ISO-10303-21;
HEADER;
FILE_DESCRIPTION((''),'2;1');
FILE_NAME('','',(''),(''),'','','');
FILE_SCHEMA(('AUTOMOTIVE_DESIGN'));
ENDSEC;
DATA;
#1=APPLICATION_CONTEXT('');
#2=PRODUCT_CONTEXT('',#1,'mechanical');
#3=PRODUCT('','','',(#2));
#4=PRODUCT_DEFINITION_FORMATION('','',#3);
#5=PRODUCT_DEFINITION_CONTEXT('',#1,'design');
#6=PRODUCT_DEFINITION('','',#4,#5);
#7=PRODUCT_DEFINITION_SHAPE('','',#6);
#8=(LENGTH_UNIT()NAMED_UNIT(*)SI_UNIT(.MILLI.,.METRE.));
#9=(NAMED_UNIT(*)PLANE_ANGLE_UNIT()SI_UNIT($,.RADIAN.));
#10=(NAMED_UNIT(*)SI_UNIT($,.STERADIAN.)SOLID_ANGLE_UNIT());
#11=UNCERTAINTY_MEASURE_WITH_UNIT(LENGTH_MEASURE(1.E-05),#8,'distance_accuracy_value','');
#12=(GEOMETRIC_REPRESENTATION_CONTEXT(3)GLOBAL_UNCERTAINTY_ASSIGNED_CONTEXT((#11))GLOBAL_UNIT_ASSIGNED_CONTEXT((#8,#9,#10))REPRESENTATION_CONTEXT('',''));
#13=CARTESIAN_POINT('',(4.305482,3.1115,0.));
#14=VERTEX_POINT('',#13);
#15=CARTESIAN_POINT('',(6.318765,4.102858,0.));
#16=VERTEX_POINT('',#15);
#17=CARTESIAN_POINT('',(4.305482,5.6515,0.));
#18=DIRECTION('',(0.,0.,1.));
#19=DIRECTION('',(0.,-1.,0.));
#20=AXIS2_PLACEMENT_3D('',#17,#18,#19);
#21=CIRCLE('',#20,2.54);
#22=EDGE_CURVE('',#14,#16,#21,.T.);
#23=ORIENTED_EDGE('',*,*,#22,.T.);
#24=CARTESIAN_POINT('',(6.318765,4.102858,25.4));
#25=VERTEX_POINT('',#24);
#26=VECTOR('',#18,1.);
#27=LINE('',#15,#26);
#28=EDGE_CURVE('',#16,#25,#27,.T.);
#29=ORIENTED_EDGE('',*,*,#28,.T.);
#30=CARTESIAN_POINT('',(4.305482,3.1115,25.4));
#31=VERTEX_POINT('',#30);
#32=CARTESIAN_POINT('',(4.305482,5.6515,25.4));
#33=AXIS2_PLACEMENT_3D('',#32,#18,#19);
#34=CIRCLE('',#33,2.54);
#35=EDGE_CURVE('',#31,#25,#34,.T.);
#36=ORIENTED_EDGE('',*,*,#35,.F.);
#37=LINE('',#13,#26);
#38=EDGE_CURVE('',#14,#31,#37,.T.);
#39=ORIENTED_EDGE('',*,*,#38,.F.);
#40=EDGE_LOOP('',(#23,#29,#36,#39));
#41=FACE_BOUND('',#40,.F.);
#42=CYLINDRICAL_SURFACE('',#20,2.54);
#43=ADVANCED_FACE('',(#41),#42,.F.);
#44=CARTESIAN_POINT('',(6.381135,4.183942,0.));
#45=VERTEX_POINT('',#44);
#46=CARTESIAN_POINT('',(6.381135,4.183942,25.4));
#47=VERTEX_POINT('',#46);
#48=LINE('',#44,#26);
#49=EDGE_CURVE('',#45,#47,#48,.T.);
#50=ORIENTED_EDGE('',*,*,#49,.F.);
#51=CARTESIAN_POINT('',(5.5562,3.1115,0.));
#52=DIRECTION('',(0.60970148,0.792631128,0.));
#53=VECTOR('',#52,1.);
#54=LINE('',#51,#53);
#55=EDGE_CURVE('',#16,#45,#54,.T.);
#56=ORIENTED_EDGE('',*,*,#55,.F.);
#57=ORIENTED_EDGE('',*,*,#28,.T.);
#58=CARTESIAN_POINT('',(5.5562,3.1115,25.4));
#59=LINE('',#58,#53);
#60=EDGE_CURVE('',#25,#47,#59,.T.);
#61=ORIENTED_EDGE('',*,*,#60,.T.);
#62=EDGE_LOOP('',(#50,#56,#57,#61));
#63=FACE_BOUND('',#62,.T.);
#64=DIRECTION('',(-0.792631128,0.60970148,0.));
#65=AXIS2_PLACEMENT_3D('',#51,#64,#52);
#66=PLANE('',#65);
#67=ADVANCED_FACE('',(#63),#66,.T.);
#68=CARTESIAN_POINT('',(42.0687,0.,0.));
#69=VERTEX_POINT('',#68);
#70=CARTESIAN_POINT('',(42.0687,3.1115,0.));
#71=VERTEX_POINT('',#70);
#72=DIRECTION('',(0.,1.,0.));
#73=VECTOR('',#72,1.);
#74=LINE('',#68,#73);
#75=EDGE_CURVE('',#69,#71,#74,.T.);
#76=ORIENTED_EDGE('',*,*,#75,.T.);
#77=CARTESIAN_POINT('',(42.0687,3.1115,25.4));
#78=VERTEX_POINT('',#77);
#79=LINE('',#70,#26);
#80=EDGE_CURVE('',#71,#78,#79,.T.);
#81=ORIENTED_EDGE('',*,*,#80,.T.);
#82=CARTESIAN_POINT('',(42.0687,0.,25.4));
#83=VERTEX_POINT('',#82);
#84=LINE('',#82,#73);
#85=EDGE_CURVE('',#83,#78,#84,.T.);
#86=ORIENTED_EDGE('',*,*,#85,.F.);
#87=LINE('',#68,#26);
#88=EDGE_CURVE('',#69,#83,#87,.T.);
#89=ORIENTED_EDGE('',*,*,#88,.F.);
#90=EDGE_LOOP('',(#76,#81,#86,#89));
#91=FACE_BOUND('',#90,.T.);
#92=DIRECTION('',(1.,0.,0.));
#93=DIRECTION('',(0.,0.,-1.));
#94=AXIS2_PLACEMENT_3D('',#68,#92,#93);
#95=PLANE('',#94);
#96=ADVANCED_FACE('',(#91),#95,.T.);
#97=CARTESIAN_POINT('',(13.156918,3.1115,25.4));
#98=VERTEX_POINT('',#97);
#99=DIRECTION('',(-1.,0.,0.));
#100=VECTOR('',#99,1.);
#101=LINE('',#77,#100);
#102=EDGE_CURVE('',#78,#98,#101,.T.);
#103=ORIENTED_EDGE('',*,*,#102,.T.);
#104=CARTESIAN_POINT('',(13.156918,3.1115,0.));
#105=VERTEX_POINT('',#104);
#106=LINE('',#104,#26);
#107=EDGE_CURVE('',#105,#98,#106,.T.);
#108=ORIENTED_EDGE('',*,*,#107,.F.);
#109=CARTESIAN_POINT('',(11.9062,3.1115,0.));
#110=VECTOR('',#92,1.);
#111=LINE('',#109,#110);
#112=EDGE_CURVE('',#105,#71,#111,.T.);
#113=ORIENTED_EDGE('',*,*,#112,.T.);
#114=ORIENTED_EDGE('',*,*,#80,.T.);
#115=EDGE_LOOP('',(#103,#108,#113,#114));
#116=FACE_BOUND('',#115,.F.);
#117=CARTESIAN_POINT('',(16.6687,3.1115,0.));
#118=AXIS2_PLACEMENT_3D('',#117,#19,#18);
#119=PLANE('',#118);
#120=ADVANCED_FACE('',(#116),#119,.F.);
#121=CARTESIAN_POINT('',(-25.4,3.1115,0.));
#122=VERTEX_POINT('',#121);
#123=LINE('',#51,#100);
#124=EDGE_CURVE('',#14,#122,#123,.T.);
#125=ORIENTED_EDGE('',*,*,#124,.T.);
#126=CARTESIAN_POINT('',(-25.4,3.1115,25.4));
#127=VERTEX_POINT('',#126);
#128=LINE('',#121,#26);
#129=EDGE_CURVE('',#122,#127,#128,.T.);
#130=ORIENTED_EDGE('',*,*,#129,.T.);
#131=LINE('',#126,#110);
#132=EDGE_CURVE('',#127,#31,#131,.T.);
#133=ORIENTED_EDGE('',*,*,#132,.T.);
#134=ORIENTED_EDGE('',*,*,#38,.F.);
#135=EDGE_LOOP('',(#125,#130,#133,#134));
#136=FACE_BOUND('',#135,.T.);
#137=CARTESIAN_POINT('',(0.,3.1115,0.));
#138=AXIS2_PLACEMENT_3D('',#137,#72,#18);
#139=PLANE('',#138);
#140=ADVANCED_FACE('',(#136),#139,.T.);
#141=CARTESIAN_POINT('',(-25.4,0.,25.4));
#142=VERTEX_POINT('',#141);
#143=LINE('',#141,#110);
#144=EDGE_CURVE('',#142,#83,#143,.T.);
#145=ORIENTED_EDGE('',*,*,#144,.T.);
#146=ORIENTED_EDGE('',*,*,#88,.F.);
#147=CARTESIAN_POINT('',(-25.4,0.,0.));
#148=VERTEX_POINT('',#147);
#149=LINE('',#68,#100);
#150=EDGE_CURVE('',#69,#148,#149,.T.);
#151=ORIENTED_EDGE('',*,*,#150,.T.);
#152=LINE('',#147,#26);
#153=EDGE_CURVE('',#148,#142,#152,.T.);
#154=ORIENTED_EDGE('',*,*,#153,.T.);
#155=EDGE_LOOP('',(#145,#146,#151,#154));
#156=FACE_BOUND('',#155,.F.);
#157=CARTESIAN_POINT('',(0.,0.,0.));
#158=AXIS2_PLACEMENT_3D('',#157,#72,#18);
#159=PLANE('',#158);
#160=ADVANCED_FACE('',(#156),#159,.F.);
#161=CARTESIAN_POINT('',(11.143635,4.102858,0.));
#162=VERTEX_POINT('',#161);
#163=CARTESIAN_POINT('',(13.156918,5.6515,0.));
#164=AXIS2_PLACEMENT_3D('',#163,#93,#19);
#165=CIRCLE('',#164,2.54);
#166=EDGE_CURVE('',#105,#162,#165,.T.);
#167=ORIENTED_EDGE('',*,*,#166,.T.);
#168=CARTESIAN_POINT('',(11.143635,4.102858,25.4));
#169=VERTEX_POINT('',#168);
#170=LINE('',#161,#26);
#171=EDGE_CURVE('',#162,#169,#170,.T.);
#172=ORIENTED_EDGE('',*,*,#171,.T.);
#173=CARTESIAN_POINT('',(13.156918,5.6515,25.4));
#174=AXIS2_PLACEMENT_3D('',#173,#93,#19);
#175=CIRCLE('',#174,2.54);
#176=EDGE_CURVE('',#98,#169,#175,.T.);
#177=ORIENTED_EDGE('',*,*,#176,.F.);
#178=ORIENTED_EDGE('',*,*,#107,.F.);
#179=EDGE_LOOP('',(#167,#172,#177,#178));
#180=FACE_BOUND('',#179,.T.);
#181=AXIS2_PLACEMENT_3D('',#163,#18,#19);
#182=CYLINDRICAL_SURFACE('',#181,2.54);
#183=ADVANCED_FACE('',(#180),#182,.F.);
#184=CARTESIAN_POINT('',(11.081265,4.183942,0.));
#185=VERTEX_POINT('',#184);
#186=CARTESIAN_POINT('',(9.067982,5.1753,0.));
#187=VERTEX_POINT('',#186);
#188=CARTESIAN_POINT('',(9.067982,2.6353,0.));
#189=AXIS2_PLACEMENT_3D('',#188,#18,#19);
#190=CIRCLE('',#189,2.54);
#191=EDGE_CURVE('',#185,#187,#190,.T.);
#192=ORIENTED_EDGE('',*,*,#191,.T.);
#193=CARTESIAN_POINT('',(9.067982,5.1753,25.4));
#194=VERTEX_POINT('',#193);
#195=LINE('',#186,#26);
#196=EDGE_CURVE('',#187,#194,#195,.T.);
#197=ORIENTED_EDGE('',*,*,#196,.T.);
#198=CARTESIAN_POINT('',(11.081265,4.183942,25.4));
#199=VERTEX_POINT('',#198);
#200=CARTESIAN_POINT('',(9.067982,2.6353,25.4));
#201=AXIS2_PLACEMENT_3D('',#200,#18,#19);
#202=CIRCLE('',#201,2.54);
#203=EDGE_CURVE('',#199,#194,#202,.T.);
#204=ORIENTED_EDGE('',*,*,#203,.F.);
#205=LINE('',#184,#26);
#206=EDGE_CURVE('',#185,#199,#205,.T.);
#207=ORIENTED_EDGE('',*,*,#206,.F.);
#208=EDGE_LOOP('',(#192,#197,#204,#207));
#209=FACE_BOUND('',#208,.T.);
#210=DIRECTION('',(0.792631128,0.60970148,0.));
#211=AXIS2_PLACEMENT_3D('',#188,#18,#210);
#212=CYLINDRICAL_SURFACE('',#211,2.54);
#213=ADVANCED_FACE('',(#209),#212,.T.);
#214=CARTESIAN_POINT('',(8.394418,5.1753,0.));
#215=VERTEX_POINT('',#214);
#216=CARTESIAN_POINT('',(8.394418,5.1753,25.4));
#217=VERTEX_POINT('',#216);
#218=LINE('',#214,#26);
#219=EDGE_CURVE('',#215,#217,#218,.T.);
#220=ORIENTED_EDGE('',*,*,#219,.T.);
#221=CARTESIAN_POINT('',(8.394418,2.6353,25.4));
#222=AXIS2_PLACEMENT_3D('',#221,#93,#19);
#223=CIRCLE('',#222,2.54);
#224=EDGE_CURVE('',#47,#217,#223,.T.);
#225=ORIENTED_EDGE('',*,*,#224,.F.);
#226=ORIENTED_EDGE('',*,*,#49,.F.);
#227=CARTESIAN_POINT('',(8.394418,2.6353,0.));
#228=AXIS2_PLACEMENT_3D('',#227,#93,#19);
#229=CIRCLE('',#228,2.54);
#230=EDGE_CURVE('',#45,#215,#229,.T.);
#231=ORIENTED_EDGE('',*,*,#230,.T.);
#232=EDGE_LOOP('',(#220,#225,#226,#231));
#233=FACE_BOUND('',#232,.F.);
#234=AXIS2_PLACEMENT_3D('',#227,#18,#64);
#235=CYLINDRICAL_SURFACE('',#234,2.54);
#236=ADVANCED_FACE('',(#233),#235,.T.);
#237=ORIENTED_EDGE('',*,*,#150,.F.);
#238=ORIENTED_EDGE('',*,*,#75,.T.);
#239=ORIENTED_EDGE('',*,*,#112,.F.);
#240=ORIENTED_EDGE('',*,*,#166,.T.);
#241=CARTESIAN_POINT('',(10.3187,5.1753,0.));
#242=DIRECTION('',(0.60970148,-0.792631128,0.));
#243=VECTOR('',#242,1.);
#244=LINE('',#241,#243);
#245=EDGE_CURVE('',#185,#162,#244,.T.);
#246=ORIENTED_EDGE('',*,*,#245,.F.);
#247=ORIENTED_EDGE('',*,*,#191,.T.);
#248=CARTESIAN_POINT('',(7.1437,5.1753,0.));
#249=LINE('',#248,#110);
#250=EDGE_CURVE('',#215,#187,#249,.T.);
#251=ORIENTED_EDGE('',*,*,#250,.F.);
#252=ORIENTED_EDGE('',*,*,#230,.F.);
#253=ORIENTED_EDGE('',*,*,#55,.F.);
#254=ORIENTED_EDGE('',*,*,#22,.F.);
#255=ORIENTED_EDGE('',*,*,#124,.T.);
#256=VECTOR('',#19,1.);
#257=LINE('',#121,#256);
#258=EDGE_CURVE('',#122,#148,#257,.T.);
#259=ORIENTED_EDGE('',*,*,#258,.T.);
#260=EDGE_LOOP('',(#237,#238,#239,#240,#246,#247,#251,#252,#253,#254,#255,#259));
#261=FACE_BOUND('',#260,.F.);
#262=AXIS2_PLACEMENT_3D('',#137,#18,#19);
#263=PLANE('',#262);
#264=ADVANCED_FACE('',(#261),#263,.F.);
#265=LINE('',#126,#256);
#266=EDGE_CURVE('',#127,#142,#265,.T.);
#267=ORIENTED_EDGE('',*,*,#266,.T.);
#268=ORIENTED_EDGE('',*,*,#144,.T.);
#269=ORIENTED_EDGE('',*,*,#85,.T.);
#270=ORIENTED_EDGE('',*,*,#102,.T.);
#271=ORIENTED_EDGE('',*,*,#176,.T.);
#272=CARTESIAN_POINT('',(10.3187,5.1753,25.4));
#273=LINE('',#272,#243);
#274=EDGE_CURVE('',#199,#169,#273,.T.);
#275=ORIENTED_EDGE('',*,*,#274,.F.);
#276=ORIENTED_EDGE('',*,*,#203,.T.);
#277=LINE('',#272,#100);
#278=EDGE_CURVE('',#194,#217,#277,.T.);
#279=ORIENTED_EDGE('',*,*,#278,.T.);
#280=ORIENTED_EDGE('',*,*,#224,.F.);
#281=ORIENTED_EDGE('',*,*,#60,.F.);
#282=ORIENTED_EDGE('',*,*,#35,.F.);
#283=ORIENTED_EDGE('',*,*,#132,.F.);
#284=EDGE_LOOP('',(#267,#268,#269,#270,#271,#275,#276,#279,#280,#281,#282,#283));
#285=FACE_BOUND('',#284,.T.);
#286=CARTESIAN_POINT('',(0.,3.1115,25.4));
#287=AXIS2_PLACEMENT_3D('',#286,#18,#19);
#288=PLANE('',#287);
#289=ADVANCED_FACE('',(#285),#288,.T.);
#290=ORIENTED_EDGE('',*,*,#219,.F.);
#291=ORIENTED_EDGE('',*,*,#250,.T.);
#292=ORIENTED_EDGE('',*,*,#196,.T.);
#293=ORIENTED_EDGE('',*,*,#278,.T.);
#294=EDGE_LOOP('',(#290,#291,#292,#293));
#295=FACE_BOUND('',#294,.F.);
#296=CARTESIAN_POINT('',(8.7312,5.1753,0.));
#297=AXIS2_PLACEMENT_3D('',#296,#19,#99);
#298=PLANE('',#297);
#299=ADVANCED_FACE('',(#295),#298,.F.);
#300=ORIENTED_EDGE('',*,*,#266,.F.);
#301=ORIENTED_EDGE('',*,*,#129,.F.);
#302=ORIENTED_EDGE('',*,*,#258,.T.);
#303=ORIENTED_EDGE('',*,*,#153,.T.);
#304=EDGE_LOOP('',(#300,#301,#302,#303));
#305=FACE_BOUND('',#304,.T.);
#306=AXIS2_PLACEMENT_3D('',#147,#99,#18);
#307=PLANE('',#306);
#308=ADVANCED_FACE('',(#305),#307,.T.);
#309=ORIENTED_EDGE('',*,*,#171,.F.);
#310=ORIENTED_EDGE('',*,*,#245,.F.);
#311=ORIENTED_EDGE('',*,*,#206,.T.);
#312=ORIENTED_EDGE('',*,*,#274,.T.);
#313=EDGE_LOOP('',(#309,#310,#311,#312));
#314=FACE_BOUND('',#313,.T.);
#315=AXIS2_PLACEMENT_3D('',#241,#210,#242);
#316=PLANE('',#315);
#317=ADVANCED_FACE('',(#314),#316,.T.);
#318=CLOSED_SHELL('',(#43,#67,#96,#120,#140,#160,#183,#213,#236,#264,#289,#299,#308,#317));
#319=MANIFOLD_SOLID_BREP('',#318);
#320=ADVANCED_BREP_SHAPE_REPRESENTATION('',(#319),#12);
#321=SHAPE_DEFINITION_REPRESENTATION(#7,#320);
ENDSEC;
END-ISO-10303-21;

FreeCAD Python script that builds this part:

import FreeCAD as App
import Part
import Sketcher
from FreeCAD import Vector
Q = App.Units.Quantity


def edges_at(feature, points):
    """Names of the edges that pass closest to the given points."""
    edges = feature.Shape.Edges
    near = lambda p: min(range(len(edges)), key=lambda i: edges[i].distToShape(Part.Vertex(*p))[0])
    return sorted({f"Edge{near(p) + 1}" for p in points})

doc = App.newDocument("Part")
body = doc.addObject("PartDesign::Body", "Body")

# Sketch on XY plane
sketch1 = doc.addObject("Sketcher::SketchObject", "Sketch")
body.addObject(sketch1)
sketch1.AttachmentSupport = (doc.XY_Plane, [""])
sketch1.MapMode = "FlatFace"
sketch1.addGeometry([
    Part.LineSegment(Vector(0, 3.1, 0), Vector(0, 0, 0)),  # 0
    Part.LineSegment(Vector(0, 0, 0), Vector(16.7, 0, 0)),  # 1
    Part.LineSegment(Vector(16.7, 0, 0), Vector(16.7, 3.1, 0)),  # 2
    Part.LineSegment(Vector(16.7, 3.1, 0), Vector(11.9, 3.1, 0)),  # 3
    Part.LineSegment(Vector(11.9, 3.1, 0), Vector(10.3, 5.2, 0)),  # 4
    Part.LineSegment(Vector(10.3, 5.2, 0), Vector(7.1, 5.2, 0)),  # 5
    Part.LineSegment(Vector(7.1, 5.2, 0), Vector(5.6, 3.1, 0)),  # 6
    Part.LineSegment(Vector(5.6, 3.1, 0), Vector(0, 3.1, 0)),  # 7
], False)
sketch1.addConstraint([
    Sketcher.Constraint("Coincident", 0, 2, 1, 1),
    Sketcher.Constraint("Coincident", 1, 2, 2, 1),
    Sketcher.Constraint("Coincident", 2, 2, 3, 1),
    Sketcher.Constraint("Coincident", 3, 2, 4, 1),
    Sketcher.Constraint("Coincident", 4, 2, 5, 1),
    Sketcher.Constraint("Coincident", 5, 2, 6, 1),
    Sketcher.Constraint("Coincident", 6, 2, 7, 1),
    Sketcher.Constraint("Coincident", 7, 2, 0, 1),
    Sketcher.Constraint("Vertical", 0),
    Sketcher.Constraint("Horizontal", 1),
    Sketcher.Constraint("Vertical", 2),
    Sketcher.Constraint("Horizontal", 3),
    Sketcher.Constraint("Horizontal", 5),
    Sketcher.Constraint("Horizontal", 7),
    Sketcher.Constraint("Coincident", 0, 2, -1, 1),
    Sketcher.Constraint("Horizontal", 3, 2, 6, 2),
    Sketcher.Constraint("Equal", 4, 6),
    Sketcher.Constraint("DistanceX", 3, 2, 3, 1, Q("0.1875 in")),
    Sketcher.Constraint("DistanceX", 5, 2, 5, 1, Q("0.125 in")),
    Sketcher.Constraint("DistanceX", 7, 2, 7, 1, Q("0.218748 in")),
    Sketcher.Constraint("DistanceX", 4, 2, 2, 2, Q("0.25 in")),
    Sketcher.Constraint("DistanceY", 0, 2, 0, 1, Q("0.1225 in")),
    Sketcher.Constraint("DistanceY", -1, 1, 4, 2, Q("5.1753 mm")),
])
pad1 = doc.addObject("PartDesign::Pad", "Pad")
body.addObject(pad1)
pad1.Profile = sketch1
pad1.Length = Q("1 in")

# Sketch on YZ plane
sketch2 = doc.addObject("Sketcher::SketchObject", "Sketch001")
body.addObject(sketch2)
sketch2.AttachmentSupport = (doc.YZ_Plane, [""])
sketch2.MapMode = "FlatFace"
sketch2.AttachmentOffset = App.Placement(Vector(0, 0, 0.656248 * 25.4), App.Rotation())
sketch2.addGeometry([
    Part.LineSegment(Vector(0, 25.4, 0), Vector(0, 0, 0)),
    Part.LineSegment(Vector(0, 0, 0), Vector(3.1, 0, 0)),
    Part.LineSegment(Vector(3.1, 0, 0), Vector(3.1, 25.4, 0)),
    Part.LineSegment(Vector(3.1, 25.4, 0), Vector(0, 25.4, 0)),
], False)
sketch2.addConstraint([
    Sketcher.Constraint("Coincident", 0, 2, 1, 1),
    Sketcher.Constraint("Coincident", 1, 2, 2, 1),
    Sketcher.Constraint("Coincident", 2, 2, 3, 1),
    Sketcher.Constraint("Coincident", 3, 2, 0, 1),
    Sketcher.Constraint("Vertical", 0),
    Sketcher.Constraint("Horizontal", 1),
    Sketcher.Constraint("Vertical", 2),
    Sketcher.Constraint("Horizontal", 3),
    Sketcher.Constraint("Coincident", 0, 2, -1, 1),
    Sketcher.Constraint("DistanceY", 0, 2, 0, 1, Q("1 in")),
    Sketcher.Constraint("DistanceX", 1, 1, 1, 2, Q("0.1225 in")),
])
pad2 = doc.addObject("PartDesign::Pad", "Pad001")
body.addObject(pad2)
pad2.Profile = sketch2
pad2.Length = Q("1 in")

# Sketch on YZ plane
sketch3 = doc.addObject("Sketcher::SketchObject", "Sketch002")
body.addObject(sketch3)
sketch3.AttachmentSupport = (doc.YZ_Plane, [""])
sketch3.MapMode = "FlatFace"
sketch3.addGeometry([
    Part.LineSegment(Vector(3.1, 25.4, 0), Vector(3.1, 0, 0)),
    Part.LineSegment(Vector(3.1, 0, 0), Vector(0, 0, 0)),
    Part.LineSegment(Vector(0, 0, 0), Vector(0, 25.4, 0)),
    Part.LineSegment(Vector(0, 25.4, 0), Vector(3.1, 25.4, 0)),
], False)
sketch3.addConstraint([
    Sketcher.Constraint("Coincident", 0, 2, 1, 1),
    Sketcher.Constraint("Coincident", 1, 2, 2, 1),
    Sketcher.Constraint("Coincident", 2, 2, 3, 1),
    Sketcher.Constraint("Coincident", 3, 2, 0, 1),
    Sketcher.Constraint("Vertical", 0),
    Sketcher.Constraint("Horizontal", 1),
    Sketcher.Constraint("Vertical", 2),
    Sketcher.Constraint("Horizontal", 3),
    Sketcher.Constraint("Coincident", 1, 2, -1, 1),
    Sketcher.Constraint("DistanceY", 0, 2, 0, 1, Q("1 in")),
    Sketcher.Constraint("DistanceX", 1, 2, 1, 1, Q("0.1225 in")),
])
pad3 = doc.addObject("PartDesign::Pad", "Pad002")
body.addObject(pad3)
pad3.Profile = sketch3
pad3.Length = Q("1 in")
pad3.Reversed = True
doc.recompute()

fillet = doc.addObject("PartDesign::Fillet", "Fillet")
body.addObject(fillet)
fillet.Base = (pad3, edges_at(pad3, [
    (10.319, 5.175, 12.7),
    (7.144, 5.175, 12.7),
    (11.906, 3.111, 12.7),
    (5.556, 3.111, 12.7),
]))
fillet.Radius = Q("0.1 in")

doc.recompute()
